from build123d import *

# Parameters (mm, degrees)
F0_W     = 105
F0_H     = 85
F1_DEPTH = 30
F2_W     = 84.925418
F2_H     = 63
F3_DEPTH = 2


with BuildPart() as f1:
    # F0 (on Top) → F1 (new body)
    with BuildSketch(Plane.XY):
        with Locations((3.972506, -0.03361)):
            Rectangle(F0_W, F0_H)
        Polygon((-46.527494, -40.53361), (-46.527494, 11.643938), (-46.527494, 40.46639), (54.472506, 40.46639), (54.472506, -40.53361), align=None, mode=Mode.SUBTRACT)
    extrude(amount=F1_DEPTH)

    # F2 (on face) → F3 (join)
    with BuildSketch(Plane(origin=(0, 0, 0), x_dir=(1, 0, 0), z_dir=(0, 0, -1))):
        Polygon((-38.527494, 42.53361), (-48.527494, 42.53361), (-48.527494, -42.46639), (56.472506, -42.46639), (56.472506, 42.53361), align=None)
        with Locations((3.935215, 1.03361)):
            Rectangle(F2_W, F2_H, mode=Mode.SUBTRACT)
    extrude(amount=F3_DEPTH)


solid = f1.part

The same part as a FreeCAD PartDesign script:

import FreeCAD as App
import Part
import Sketcher
Q = App.Units.Quantity

doc = App.newDocument("Part")
body = doc.addObject("PartDesign::Body", "Body")

sketch1 = body.newObject("Sketcher::SketchObject", "Sketch")
sketch1.AttachmentSupport = (doc.getObject("XY_Plane"), [""])
sketch1.MapMode = "FlatFace"
sketch1.addGeometry([
    Part.LineSegment(App.Vector(-49, 42, 0), App.Vector(-49, -43, 0)),
    Part.LineSegment(App.Vector(-49, -43, 0), App.Vector(56, -43, 0)),
    Part.LineSegment(App.Vector(56, -43, 0), App.Vector(56, 42, 0)),
    Part.LineSegment(App.Vector(56, 42, 0), App.Vector(-49, 42, 0)),
    Part.LineSegment(App.Vector(54, -41, 0), App.Vector(-47, -41, 0)),
    Part.LineSegment(App.Vector(-47, -41, 0), App.Vector(-47, 40, 0)),
    Part.LineSegment(App.Vector(-47, 40, 0), App.Vector(54, 40, 0)),
    Part.LineSegment(App.Vector(54, 40, 0), App.Vector(54, -41, 0)),
], False)
sketch1.addConstraint([
    Sketcher.Constraint("Coincident", 0, 2, 1, 1),
    Sketcher.Constraint("Coincident", 1, 2, 2, 1),
    Sketcher.Constraint("Coincident", 2, 2, 3, 1),
    Sketcher.Constraint("Coincident", 3, 2, 0, 1),
    Sketcher.Constraint("Coincident", 4, 2, 5, 1),
    Sketcher.Constraint("Coincident", 5, 2, 6, 1),
    Sketcher.Constraint("Coincident", 6, 2, 7, 1),
    Sketcher.Constraint("Coincident", 7, 2, 4, 1),
    Sketcher.Constraint("Vertical", 0),
    Sketcher.Constraint("Horizontal", 1),
    Sketcher.Constraint("Vertical", 2),
    Sketcher.Constraint("Horizontal", 3),
    Sketcher.Constraint("Horizontal", 4),
    Sketcher.Constraint("Vertical", 5),
    Sketcher.Constraint("Horizontal", 6),
    Sketcher.Constraint("Vertical", 7),
    Sketcher.Constraint("DistanceX", 1, 1, 1, 2, Q("105 mm")),
    Sketcher.Constraint("DistanceX", 4, 2, 4, 1, Q("101 mm")),
    Sketcher.Constraint("DistanceY", 0, 2, 0, 1, Q("85 mm")),
    Sketcher.Constraint("DistanceY", 5, 1, 5, 2, Q("81 mm")),
    Sketcher.Constraint("DistanceX", 0, 2, 4, 2, Q("2 mm")),
    Sketcher.Constraint("DistanceY", 0, 2, 4, 2, Q("2 mm")),
    Sketcher.Constraint("DistanceY", 0, 2, -1, 1, Q("42.53361 mm")),
    Sketcher.Constraint("DistanceX", 0, 2, -1, 1, Q("48.527494 mm")),
])
pad1 = body.newObject("PartDesign::Pad", "Pad")
pad1.Profile = sketch1
pad1.Length = 30

sketch2 = body.newObject("Sketcher::SketchObject", "Sketch001")
sketch2.AttachmentSupport = (doc.getObject("XY_Plane"), [""])
sketch2.MapMode = "FlatFace"
sketch2.addGeometry([
    Part.LineSegment(App.Vector(-49, -43, 0), App.Vector(-49, 42, 0)),
    Part.LineSegment(App.Vector(-49, 42, 0), App.Vector(56, 42, 0)),
    Part.LineSegment(App.Vector(56, 42, 0), App.Vector(56, -43, 0)),
    Part.LineSegment(App.Vector(56, -43, 0), App.Vector(-49, -43, 0)),
    Part.LineSegment(App.Vector(46, 30, 0), App.Vector(-39, 30, 0)),
    Part.LineSegment(App.Vector(-39, 30, 0), App.Vector(-39, -33, 0)),
    Part.LineSegment(App.Vector(-39, -33, 0), App.Vector(46, -33, 0)),
    Part.LineSegment(App.Vector(46, -33, 0), App.Vector(46, 30, 0)),
], False)
sketch2.addConstraint([
    Sketcher.Constraint("Coincident", 0, 2, 1, 1),
    Sketcher.Constraint("Coincident", 1, 2, 2, 1),
    Sketcher.Constraint("Coincident", 2, 2, 3, 1),
    Sketcher.Constraint("Coincident", 3, 2, 0, 1),
    Sketcher.Constraint("Coincident", 4, 2, 5, 1),
    Sketcher.Constraint("Coincident", 5, 2, 6, 1),
    Sketcher.Constraint("Coincident", 6, 2, 7, 1),
    Sketcher.Constraint("Coincident", 7, 2, 4, 1),
    Sketcher.Constraint("Vertical", 0),
    Sketcher.Constraint("Horizontal", 1),
    Sketcher.Constraint("Vertical", 2),
    Sketcher.Constraint("Horizontal", 3),
    Sketcher.Constraint("Horizontal", 4),
    Sketcher.Constraint("Vertical", 5),
    Sketcher.Constraint("Horizontal", 6),
    Sketcher.Constraint("Vertical", 7),
    Sketcher.Constraint("DistanceX", 1, 1, 1, 2, Q("105 mm")),
    Sketcher.Constraint("DistanceY", 0, 1, 0, 2, Q("85 mm")),
    Sketcher.Constraint("DistanceY", 5, 2, 5, 1, Q("63 mm")),
    Sketcher.Constraint("DistanceX", 0, 2, 4, 2, Q("10 mm")),
    Sketcher.Constraint("DistanceY", 4, 2, 0, 2, Q("12 mm")),
    Sketcher.Constraint("DistanceX", 4, 2, 4, 1, Q("84.925418 mm")),
    Sketcher.Constraint("DistanceY", -1, 1, 0, 2, Q("42.46639 mm")),
    Sketcher.Constraint("DistanceX", 0, 2, -1, 1, Q("48.527494 mm")),
])
pad2 = body.newObject("PartDesign::Pad", "Pad001")
pad2.Profile = sketch2
pad2.Length = 2
pad2.Reversed = True

doc.recompute()
